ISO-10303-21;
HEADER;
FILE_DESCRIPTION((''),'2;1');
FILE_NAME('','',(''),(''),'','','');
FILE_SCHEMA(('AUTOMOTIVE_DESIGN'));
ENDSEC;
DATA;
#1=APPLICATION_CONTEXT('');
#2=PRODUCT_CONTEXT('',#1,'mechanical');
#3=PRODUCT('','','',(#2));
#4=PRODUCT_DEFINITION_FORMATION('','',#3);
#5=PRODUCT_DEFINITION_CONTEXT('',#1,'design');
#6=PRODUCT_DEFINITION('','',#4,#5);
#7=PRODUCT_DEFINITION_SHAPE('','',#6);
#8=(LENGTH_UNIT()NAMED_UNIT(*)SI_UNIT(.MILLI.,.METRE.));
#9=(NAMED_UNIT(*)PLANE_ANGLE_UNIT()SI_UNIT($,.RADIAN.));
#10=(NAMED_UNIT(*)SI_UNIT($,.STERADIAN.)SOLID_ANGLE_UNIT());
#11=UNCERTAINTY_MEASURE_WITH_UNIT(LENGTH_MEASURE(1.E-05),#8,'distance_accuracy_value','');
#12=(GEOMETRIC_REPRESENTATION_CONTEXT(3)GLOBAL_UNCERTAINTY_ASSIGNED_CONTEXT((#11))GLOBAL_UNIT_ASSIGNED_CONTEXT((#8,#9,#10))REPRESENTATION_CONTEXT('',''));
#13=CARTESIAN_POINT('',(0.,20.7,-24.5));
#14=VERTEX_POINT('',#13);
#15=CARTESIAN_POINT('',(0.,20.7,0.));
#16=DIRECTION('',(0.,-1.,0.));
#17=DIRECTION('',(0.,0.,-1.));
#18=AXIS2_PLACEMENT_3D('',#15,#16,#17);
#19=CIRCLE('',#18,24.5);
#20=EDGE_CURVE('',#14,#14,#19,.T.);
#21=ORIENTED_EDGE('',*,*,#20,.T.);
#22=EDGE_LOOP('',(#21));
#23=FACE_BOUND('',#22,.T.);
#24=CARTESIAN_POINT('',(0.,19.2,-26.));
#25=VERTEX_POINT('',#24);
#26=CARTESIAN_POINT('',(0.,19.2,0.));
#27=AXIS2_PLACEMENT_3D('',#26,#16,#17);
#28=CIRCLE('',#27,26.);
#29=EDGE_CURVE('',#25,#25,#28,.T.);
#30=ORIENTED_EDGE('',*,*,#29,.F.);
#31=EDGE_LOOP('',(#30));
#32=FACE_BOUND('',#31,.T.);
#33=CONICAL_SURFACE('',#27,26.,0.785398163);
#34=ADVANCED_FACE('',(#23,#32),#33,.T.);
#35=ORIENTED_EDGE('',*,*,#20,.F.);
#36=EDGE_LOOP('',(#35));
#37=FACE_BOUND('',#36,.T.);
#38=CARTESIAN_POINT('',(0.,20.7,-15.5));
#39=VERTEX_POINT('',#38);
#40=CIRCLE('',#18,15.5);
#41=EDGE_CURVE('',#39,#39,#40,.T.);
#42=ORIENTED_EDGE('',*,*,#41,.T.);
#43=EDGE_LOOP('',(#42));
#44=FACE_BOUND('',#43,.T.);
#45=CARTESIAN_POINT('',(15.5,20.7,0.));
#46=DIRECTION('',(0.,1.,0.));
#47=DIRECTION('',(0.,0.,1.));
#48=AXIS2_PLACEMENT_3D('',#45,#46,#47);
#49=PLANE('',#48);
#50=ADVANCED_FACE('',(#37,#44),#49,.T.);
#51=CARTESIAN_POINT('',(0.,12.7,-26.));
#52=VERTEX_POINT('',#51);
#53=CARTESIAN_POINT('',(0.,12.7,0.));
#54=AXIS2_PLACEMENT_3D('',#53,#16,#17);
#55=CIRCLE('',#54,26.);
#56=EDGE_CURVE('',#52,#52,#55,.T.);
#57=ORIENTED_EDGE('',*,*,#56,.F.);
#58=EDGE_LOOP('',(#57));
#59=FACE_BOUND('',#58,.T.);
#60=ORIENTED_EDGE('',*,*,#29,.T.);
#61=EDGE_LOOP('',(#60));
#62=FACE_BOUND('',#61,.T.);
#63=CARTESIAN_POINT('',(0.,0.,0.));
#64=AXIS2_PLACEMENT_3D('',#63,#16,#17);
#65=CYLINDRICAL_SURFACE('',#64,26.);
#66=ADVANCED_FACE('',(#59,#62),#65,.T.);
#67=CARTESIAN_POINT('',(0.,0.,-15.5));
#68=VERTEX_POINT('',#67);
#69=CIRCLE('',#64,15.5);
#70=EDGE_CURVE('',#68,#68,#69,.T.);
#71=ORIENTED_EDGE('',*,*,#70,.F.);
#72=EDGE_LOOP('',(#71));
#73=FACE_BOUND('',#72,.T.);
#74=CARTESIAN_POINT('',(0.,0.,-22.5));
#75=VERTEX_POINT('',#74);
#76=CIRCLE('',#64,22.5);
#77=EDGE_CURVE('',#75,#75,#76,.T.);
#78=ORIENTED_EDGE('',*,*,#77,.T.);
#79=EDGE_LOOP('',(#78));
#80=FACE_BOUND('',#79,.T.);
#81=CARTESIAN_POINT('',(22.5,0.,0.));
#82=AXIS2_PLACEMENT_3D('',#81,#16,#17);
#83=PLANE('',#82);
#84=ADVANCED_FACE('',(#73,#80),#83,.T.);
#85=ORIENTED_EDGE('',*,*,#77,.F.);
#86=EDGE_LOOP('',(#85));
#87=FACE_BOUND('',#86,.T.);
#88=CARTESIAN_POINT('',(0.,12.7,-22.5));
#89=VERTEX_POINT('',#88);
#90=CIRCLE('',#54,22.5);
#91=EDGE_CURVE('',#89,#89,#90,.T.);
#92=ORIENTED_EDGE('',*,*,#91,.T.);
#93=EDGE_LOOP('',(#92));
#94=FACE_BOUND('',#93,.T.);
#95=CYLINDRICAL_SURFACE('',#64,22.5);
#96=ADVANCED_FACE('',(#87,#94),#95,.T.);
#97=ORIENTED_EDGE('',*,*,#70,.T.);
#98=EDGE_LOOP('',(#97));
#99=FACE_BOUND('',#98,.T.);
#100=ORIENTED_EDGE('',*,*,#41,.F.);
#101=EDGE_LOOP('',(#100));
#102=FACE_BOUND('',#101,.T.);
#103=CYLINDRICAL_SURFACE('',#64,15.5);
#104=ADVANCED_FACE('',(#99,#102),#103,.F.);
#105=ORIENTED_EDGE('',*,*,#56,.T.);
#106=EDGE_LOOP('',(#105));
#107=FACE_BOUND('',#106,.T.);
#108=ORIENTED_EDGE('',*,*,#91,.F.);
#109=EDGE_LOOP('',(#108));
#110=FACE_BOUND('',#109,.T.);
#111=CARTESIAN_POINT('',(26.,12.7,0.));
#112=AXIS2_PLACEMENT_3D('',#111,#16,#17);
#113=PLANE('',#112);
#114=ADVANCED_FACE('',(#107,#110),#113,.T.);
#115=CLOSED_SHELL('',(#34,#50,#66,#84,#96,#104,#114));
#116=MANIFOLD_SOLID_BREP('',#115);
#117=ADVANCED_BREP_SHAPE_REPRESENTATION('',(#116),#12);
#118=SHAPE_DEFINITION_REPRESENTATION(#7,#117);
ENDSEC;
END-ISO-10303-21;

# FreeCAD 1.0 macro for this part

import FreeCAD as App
import Part
import Sketcher

V = App.Vector
Q = App.Units.Quantity


def add_polygon(sketch, points):
    """Adds a closed chain of lines whose ends are joined by coincident constraints."""
    first, n = sketch.GeometryCount, len(points)
    for a, b in zip(points, points[1:] + points[:1]):
        sketch.addGeometry(Part.LineSegment(App.Vector(*a, 0), App.Vector(*b, 0)), False)
    for i in range(n):
        sketch.addConstraint(Sketcher.Constraint("Coincident", first + i, 2, first + (i + 1) % n, 1))

doc = App.newDocument("Part")
params = doc.addObject("Spreadsheet::Sheet", "Params")
for row, (alias, value) in enumerate([
    ("sketch1_width", "7 mm"),
    ("sketch1_width2", "9 mm"),
    ("sketch1_width3", "3.5 mm"),
    ("sketch1_height", "20.7 mm"),
    ("sketch1_height2", "12.7 mm"),
    ("revolution_angle", "360 deg"),
], start=1):
    params.set(f"A{row}", alias)
    params.set(f"B{row}", "=" + value)
    params.setAlias(f"B{row}", alias)

body = doc.addObject("PartDesign::Body", "Body")

# Sketch on XY plane
sketch1 = body.newObject("Sketcher::SketchObject", "Sketch")
sketch1.AttachmentSupport = (doc.getObject("XY_Plane"), [""])
sketch1.MapMode = "FlatFace"
add_polygon(sketch1, [(15.5, 20.7), (15.5, 0), (22.5, 0), (22.5, 12.7), (26, 12.7), (26, 19.2), (24.5, 20.7)])  # lines 0-6
sketch1.addConstraint([
    Sketcher.Constraint("Vertical", 0),
    Sketcher.Constraint("Horizontal", 1),
    Sketcher.Constraint("Vertical", 2),
    Sketcher.Constraint("Horizontal", 3),
    Sketcher.Constraint("Vertical", 4),
    Sketcher.Constraint("Horizontal", 6),
    Sketcher.Constraint("PointOnObject", 0, 2, -1),
    Sketcher.Constraint("DistanceX", 1, 1, 1, 2, Q("7 mm")),
    Sketcher.Constraint("DistanceX", 6, 2, 6, 1, Q("9 mm")),
    Sketcher.Constraint("Angle", 5, Q("135 deg")),
    Sketcher.Constraint("DistanceX", 3, 1, 3, 2, Q("3.5 mm")),
    Sketcher.Constraint("DistanceY", 0, 2, 0, 1, Q("20.7 mm")),
    Sketcher.Constraint("DistanceY", 2, 1, 2, 2, Q("12.7 mm")),
    Sketcher.Constraint("DistanceX", -1, 1, 3, 2, Q("26 mm")),
])
sketch1.setExpression("Constraints[14]", "Params.sketch1_width")
sketch1.setExpression("Constraints[15]", "Params.sketch1_width2")
sketch1.setExpression("Constraints[17]", "Params.sketch1_width3")
sketch1.setExpression("Constraints[18]", "Params.sketch1_height")
sketch1.setExpression("Constraints[19]", "Params.sketch1_height2")
revolution = body.newObject("PartDesign::Revolution", "Revolution")
revolution.Profile = sketch1
revolution.ReferenceAxis = (sketch1, ["V_Axis"])
revolution.setExpression("Angle", "Params.revolution_angle")

doc.recompute()
